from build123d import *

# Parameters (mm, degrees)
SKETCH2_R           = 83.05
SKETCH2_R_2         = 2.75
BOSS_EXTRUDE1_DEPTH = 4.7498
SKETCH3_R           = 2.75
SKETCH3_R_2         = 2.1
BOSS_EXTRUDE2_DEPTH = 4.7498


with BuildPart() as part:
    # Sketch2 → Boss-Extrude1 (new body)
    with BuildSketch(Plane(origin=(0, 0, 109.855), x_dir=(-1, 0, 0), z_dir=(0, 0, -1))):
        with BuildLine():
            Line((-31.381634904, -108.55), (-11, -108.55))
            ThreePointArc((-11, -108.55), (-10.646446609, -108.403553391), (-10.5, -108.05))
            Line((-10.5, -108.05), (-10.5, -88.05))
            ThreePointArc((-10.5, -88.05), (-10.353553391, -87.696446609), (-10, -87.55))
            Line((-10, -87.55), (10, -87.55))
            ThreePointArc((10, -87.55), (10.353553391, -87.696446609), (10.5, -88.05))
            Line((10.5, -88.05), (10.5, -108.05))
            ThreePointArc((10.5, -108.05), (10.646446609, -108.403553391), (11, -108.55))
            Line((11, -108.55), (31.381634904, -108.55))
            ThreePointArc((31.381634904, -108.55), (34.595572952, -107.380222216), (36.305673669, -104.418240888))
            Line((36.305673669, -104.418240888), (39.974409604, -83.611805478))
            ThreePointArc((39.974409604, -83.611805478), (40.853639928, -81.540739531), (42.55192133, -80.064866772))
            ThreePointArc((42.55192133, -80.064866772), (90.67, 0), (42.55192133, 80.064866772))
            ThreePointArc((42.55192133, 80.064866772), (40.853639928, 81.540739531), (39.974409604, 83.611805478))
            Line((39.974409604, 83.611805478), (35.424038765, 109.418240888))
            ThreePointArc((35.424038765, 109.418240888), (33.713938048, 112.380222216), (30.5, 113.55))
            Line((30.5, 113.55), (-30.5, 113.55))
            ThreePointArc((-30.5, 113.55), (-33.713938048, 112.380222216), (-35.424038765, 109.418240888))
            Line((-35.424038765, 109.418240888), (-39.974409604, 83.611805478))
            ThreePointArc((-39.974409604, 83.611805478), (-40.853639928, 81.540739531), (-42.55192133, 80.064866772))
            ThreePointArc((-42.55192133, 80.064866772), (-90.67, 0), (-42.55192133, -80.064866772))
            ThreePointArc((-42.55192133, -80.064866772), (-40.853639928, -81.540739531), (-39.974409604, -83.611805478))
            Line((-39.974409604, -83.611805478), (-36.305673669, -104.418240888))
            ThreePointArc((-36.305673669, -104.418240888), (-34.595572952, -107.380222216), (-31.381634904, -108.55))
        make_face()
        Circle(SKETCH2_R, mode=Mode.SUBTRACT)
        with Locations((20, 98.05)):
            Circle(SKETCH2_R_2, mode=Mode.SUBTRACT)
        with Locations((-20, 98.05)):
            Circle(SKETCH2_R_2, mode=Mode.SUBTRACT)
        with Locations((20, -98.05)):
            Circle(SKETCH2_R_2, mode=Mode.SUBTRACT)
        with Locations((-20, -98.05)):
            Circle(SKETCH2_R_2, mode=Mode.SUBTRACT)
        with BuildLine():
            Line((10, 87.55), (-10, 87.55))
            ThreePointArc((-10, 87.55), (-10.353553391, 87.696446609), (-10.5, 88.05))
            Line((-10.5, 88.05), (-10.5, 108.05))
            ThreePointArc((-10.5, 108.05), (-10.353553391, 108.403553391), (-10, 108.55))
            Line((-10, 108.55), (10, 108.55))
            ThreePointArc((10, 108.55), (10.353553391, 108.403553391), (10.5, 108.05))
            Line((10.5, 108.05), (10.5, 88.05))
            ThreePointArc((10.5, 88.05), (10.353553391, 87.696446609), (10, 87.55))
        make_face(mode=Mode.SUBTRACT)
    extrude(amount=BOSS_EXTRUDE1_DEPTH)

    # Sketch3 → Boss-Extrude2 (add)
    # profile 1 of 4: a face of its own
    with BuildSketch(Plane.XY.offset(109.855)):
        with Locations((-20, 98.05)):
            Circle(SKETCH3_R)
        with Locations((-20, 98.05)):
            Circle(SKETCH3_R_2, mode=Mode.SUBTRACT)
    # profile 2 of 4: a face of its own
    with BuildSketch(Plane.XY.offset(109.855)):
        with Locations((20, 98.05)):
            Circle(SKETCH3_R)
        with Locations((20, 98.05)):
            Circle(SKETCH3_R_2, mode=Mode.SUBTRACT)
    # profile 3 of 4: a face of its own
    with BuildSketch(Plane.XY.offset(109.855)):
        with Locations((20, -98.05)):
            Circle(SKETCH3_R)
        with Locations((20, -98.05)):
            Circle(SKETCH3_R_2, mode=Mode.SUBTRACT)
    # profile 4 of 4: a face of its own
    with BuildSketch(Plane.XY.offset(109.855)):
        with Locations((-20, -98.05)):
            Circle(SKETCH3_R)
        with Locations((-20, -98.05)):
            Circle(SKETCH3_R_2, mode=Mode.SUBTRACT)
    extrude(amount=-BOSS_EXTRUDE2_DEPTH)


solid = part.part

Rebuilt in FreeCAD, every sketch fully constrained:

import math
import FreeCAD as App
import Part
import Sketcher
Q = App.Units.Quantity

doc = App.newDocument("Part")
params = doc.addObject("Spreadsheet::Sheet", "Params")
for row, (alias, value) in enumerate([
    ("sketch1_radius", "5 mm"),
    ("sketch1_diameter", "5.5 mm"),
    ("sketch1_diameter2", "166.1 mm"),
    ("sketch1_radius2", "0.5 mm"),
    ("sketch1_width", "20 mm"),
    ("pad1_length", "4.7498 mm"),
    ("sketch2_diameter", "5.5 mm"),
    ("sketch2_diameter2", "4.2 mm"),
    ("pad2_length", "4.7498 mm"),
], start=1):
    params.set(f"A{row}", alias)
    params.set(f"B{row}", "=" + value)
    params.setAlias(f"B{row}", alias)

body = doc.addObject("PartDesign::Body", "Body")

# Sketch on XY plane
sketch1 = body.newObject("Sketcher::SketchObject", "Sketch")
sketch1.AttachmentSupport = (doc.getObject("XY_Plane"), [""])
sketch1.MapMode = "FlatFace"
sketch1.AttachmentOffset = App.Placement(App.Vector(0, 0, 109.855), App.Rotation())
sketch1.addGeometry([
    Part.LineSegment(App.Vector(31.38, -108.55, 0), App.Vector(11, -108.55, 0)),  # 0
    Part.ArcOfCircle(Part.Circle(App.Vector(11, -108.05, 0), App.Vector(0, 0, 1), 0.5), math.radians(180), math.radians(270)),  # 1
    Part.LineSegment(App.Vector(10.5, -108.05, 0), App.Vector(10.5, -88.05, 0)),  # 2
    Part.ArcOfCircle(Part.Circle(App.Vector(10, -88.05, 0), App.Vector(0, 0, 1), 0.5), math.radians(0), math.radians(90)),  # 3
    Part.LineSegment(App.Vector(10, -87.55, 0), App.Vector(-10, -87.55, 0)),  # 4
    Part.ArcOfCircle(Part.Circle(App.Vector(-10, -88.05, 0), App.Vector(0, 0, 1), 0.5), math.radians(90), math.radians(180)),  # 5
    Part.LineSegment(App.Vector(-10.5, -88.05, 0), App.Vector(-10.5, -108.05, 0)),  # 6
    Part.ArcOfCircle(Part.Circle(App.Vector(-11, -108.05, 0), App.Vector(0, 0, 1), 0.5), math.radians(-90), math.radians(0)),  # 7
    Part.LineSegment(App.Vector(-11, -108.55, 0), App.Vector(-31.38, -108.55, 0)),  # 8
    Part.ArcOfCircle(Part.Circle(App.Vector(-31.38, -103.55, 0), App.Vector(0, 0, 1), 5), math.radians(-170), math.radians(-90)),  # 9
    Part.LineSegment(App.Vector(-36.31, -104.42, 0), App.Vector(-39.97, -83.61, 0)),  # 10
    Part.ArcOfCircle(Part.Circle(App.Vector(-44.9, -84.48, 0), App.Vector(0, 0, 1), 5), math.radians(10), math.radians(62)),  # 11
    Part.ArcOfCircle(Part.Circle(App.Vector(0, 0, 0), App.Vector(0, 0, 1), 90.67), math.radians(118), math.radians(242)),  # 12
    Part.ArcOfCircle(Part.Circle(App.Vector(-44.9, 84.48, 0), App.Vector(0, 0, 1), 5), math.radians(-62), math.radians(-10)),  # 13
    Part.LineSegment(App.Vector(-39.97, 83.61, 0), App.Vector(-35.42, 109.42, 0)),  # 14
    Part.ArcOfCircle(Part.Circle(App.Vector(-30.5, 108.55, 0), App.Vector(0, 0, 1), 5), math.radians(90), math.radians(170)),  # 15
    Part.LineSegment(App.Vector(-30.5, 113.55, 0), App.Vector(30.5, 113.55, 0)),  # 16
    Part.ArcOfCircle(Part.Circle(App.Vector(30.5, 108.55, 0), App.Vector(0, 0, 1), 5), math.radians(10), math.radians(90)),  # 17
    Part.LineSegment(App.Vector(35.42, 109.42, 0), App.Vector(39.97, 83.61, 0)),  # 18
    Part.ArcOfCircle(Part.Circle(App.Vector(44.9, 84.48, 0), App.Vector(0, 0, 1), 5), math.radians(-170), math.radians(-118)),  # 19
    Part.ArcOfCircle(Part.Circle(App.Vector(0, 0, 0), App.Vector(0, 0, 1), 90.67), math.radians(-62), math.radians(62)),  # 20
    Part.ArcOfCircle(Part.Circle(App.Vector(44.9, -84.48, 0), App.Vector(0, 0, 1), 5), math.radians(118), math.radians(170)),  # 21
    Part.LineSegment(App.Vector(39.97, -83.61, 0), App.Vector(36.31, -104.42, 0)),  # 22
    Part.ArcOfCircle(Part.Circle(App.Vector(31.38, -103.55, 0), App.Vector(0, 0, 1), 5), math.radians(-90), math.radians(-10)),  # 23
    Part.Circle(App.Vector(20, -98.05, 0), App.Vector(0, 0, 1), 2.75),  # 24
    Part.Circle(App.Vector(-20, -98.05, 0), App.Vector(0, 0, 1), 2.75),  # 25
    Part.Circle(App.Vector(0, 0, 0), App.Vector(0, 0, 1), 83.05),  # 26
    Part.Circle(App.Vector(20, 98.05, 0), App.Vector(0, 0, 1), 2.75),  # 27
    Part.ArcOfCircle(Part.Circle(App.Vector(-10, 88.05, 0), App.Vector(0, 0, 1), 0.5), math.radians(180), math.radians(270)),  # 28
    Part.LineSegment(App.Vector(-10, 87.55, 0), App.Vector(10, 87.55, 0)),  # 29
    Part.ArcOfCircle(Part.Circle(App.Vector(10, 88.05, 0), App.Vector(0, 0, 1), 0.5), math.radians(-90), math.radians(0)),  # 30
    Part.LineSegment(App.Vector(10.5, 88.05, 0), App.Vector(10.5, 108.05, 0)),  # 31
    Part.ArcOfCircle(Part.Circle(App.Vector(10, 108.05, 0), App.Vector(0, 0, 1), 0.5), math.radians(0), math.radians(90)),  # 32
    Part.LineSegment(App.Vector(10, 108.55, 0), App.Vector(-10, 108.55, 0)),  # 33
    Part.ArcOfCircle(Part.Circle(App.Vector(-10, 108.05, 0), App.Vector(0, 0, 1), 0.5), math.radians(90), math.radians(180)),  # 34
    Part.LineSegment(App.Vector(-10.5, 108.05, 0), App.Vector(-10.5, 88.05, 0)),  # 35
    Part.Circle(App.Vector(-20, 98.05, 0), App.Vector(0, 0, 1), 2.75),  # 36
], False)
sketch1.addConstraint([
    Sketcher.Constraint("Tangent", 0, 2, 1, 2),
    Sketcher.Constraint("Tangent", 1, 1, 2, 1),
    Sketcher.Constraint("Tangent", 2, 2, 3, 1),
    Sketcher.Constraint("Tangent", 3, 2, 4, 1),
    Sketcher.Constraint("Tangent", 4, 2, 5, 1),
    Sketcher.Constraint("Tangent", 5, 2, 6, 1),
    Sketcher.Constraint("Tangent", 6, 2, 7, 2),
    Sketcher.Constraint("Tangent", 7, 1, 8, 1),
    Sketcher.Constraint("Tangent", 8, 2, 9, 2),
    Sketcher.Constraint("Tangent", 9, 1, 10, 1),
    Sketcher.Constraint("Tangent", 10, 2, 11, 1),
    Sketcher.Constraint("Tangent", 11, 2, 12, 2),
    Sketcher.Constraint("Tangent", 12, 1, 13, 1),
    Sketcher.Constraint("Tangent", 13, 2, 14, 1),
    Sketcher.Constraint("Tangent", 14, 2, 15, 2),
    Sketcher.Constraint("Tangent", 15, 1, 16, 1),
    Sketcher.Constraint("Tangent", 16, 2, 17, 2),
    Sketcher.Constraint("Tangent", 17, 1, 18, 1),
    Sketcher.Constraint("Tangent", 18, 2, 19, 1),
    Sketcher.Constraint("Tangent", 19, 2, 20, 2),
    Sketcher.Constraint("Tangent", 20, 1, 21, 1),
    Sketcher.Constraint("Tangent", 21, 2, 22, 1),
    Sketcher.Constraint("Tangent", 22, 2, 23, 2),
    Sketcher.Constraint("Tangent", 23, 1, 0, 1),
    Sketcher.Constraint("Tangent", 28, 2, 29, 1),
    Sketcher.Constraint("Tangent", 29, 2, 30, 1),
    Sketcher.Constraint("Tangent", 30, 2, 31, 1),
    Sketcher.Constraint("Tangent", 31, 2, 32, 1),
    Sketcher.Constraint("Tangent", 32, 2, 33, 1),
    Sketcher.Constraint("Tangent", 33, 2, 34, 1),
    Sketcher.Constraint("Tangent", 34, 2, 35, 1),
    Sketcher.Constraint("Tangent", 35, 2, 28, 1),
    Sketcher.Constraint("Horizontal", 0),
    Sketcher.Constraint("Vertical", 2),
    Sketcher.Constraint("Horizontal", 4),
    Sketcher.Constraint("Vertical", 6),
    Sketcher.Constraint("Horizontal", 8),
    Sketcher.Constraint("Horizontal", 16),
    Sketcher.Constraint("Horizontal", 29),
    Sketcher.Constraint("Vertical", 31),
    Sketcher.Constraint("Horizontal", 33),
    Sketcher.Constraint("Vertical", 35),
    Sketcher.Constraint("Coincident", 12, 3, -1, 1),
    Sketcher.Constraint("Coincident", 20, 3, -1, 1),
    Sketcher.Constraint("Coincident", 26, 3, -1, 1),
    Sketcher.Constraint("Equal", 1, 3),
    Sketcher.Constraint("Equal", 3, 5),
    Sketcher.Constraint("Equal", 5, 7),
    Sketcher.Constraint("Equal", 9, 11),
    Sketcher.Constraint("Equal", 11, 13),
    Sketcher.Constraint("Equal", 13, 15),
    Sketcher.Constraint("Equal", 15, 17),
    Sketcher.Constraint("Equal", 17, 19),
    Sketcher.Constraint("Equal", 12, 20),
    Sketcher.Constraint("Equal", 19, 21),
    Sketcher.Constraint("Equal", 21, 23),
    Sketcher.Constraint("Equal", 24, 25),
    Sketcher.Constraint("Equal", 25, 27),
    Sketcher.Constraint("Equal", 7, 28),
    Sketcher.Constraint("Equal", 28, 30),
    Sketcher.Constraint("Equal", 30, 32),
    Sketcher.Constraint("Equal", 32, 34),
    Sketcher.Constraint("Equal", 27, 36),
    Sketcher.Constraint("Symmetric", 25, 3, 27, 3, -1, 1),
    Sketcher.Constraint("Symmetric", 3, 3, 28, 3, -1, 1),
    Sketcher.Constraint("Symmetric", 24, 3, 36, 3, -1, 1),
    Sketcher.Constraint("Symmetric", 10, 2, 18, 2, -1, 1),
    Sketcher.Constraint("Symmetric", 13, 2, 21, 2, -1, 1),
    Sketcher.Constraint("Symmetric", 6, 2, 31, 2, -1, 1),
    Sketcher.Constraint("Symmetric", 1, 3, 7, 3, -2),
    Sketcher.Constraint("Symmetric", 24, 3, 25, 3, -2),
    Sketcher.Constraint("Symmetric", 14, 2, 17, 1, -2),
    Sketcher.Constraint("Horizontal", 17, 3, 32, 2),
    Sketcher.Constraint("Equal", 33, 2),
    Sketcher.Constraint("Radius", 9, Q("5 mm")),
    Sketcher.Constraint("Diameter", 24, Q("5.5 mm")),
    Sketcher.Constraint("Diameter", 26, Q("166.1 mm")),
    Sketcher.Constraint("Radius", 1, Q("0.5 mm")),
    Sketcher.Constraint("DistanceX", 4, 2, 4, 1, Q("20 mm")),
    Sketcher.Constraint("DistanceX", 16, 1, 16, 2, Q("61 mm")),
    Sketcher.Constraint("Angle", 10, Q("100 deg")),
    Sketcher.Constraint("Radius", 12, Q("90.67 mm")),
    Sketcher.Constraint("DistanceX", -1, 1, 24, 3, Q("20 mm")),
    Sketcher.Constraint("DistanceY", 1, 3, 24, 3, Q("10 mm")),
    Sketcher.Constraint("DistanceY", 5, 3, 15, 3, Q("196.6 mm")),
])
sketch1.setExpression("Constraints[74]", "Params.sketch1_radius")
sketch1.setExpression("Constraints[75]", "Params.sketch1_diameter")
sketch1.setExpression("Constraints[76]", "Params.sketch1_diameter2")
sketch1.setExpression("Constraints[77]", "Params.sketch1_radius2")
sketch1.setExpression("Constraints[78]", "Params.sketch1_width")
pad1 = body.newObject("PartDesign::Pad", "Pad")
pad1.Profile = sketch1
pad1.setExpression("Length", "Params.pad1_length")
pad1.Reversed = True

# Sketch on XY plane
sketch2 = body.newObject("Sketcher::SketchObject", "Sketch001")
sketch2.AttachmentSupport = (doc.getObject("XY_Plane"), [""])
sketch2.MapMode = "FlatFace"
sketch2.AttachmentOffset = App.Placement(App.Vector(0, 0, 109.855), App.Rotation())
sketch2.addGeometry([
    Part.Circle(App.Vector(-20, 98, 0), App.Vector(0, 0, 1), 2.8),  # 0
    Part.Circle(App.Vector(-20, 98, 0), App.Vector(0, 0, 1), 2.1),  # 1
    Part.Circle(App.Vector(20, 98, 0), App.Vector(0, 0, 1), 2.8),  # 2
    Part.Circle(App.Vector(20, 98, 0), App.Vector(0, 0, 1), 2.1),  # 3
    Part.Circle(App.Vector(20, -98, 0), App.Vector(0, 0, 1), 2.8),  # 4
    Part.Circle(App.Vector(20, -98, 0), App.Vector(0, 0, 1), 2.1),  # 5
    Part.Circle(App.Vector(-20, -98, 0), App.Vector(0, 0, 1), 2.8),  # 6
    Part.Circle(App.Vector(-20, -98, 0), App.Vector(0, 0, 1), 2.1),  # 7
], False)
sketch2.addConstraint([
    Sketcher.Constraint("Coincident", 1, 3, 0, 3),
    Sketcher.Constraint("Coincident", 3, 3, 2, 3),
    Sketcher.Constraint("Coincident", 5, 3, 4, 3),
    Sketcher.Constraint("Coincident", 7, 3, 6, 3),
    Sketcher.Constraint("Equal", 0, 2),
    Sketcher.Constraint("Equal", 1, 3),
    Sketcher.Constraint("Equal", 2, 4),
    Sketcher.Constraint("Equal", 3, 5),
    Sketcher.Constraint("Equal", 4, 6),
    Sketcher.Constraint("Equal", 5, 7),
    Sketcher.Constraint("Symmetric", 0, 3, 4, 3, -1, 1),
    Sketcher.Constraint("Symmetric", 2, 3, 6, 3, -1, 1),
    Sketcher.Constraint("Symmetric", 0, 3, 2, 3, -2),
    Sketcher.Constraint("Diameter", 0, Q("5.5 mm")),
    Sketcher.Constraint("Diameter", 1, Q("4.2 mm")),
    Sketcher.Constraint("DistanceX", 0, 3, -1, 1, Q("20 mm")),
    Sketcher.Constraint("DistanceY", 4, 3, 2, 3, Q("196.1 mm")),
])
sketch2.setExpression("Constraints[13]", "Params.sketch2_diameter")
sketch2.setExpression("Constraints[14]", "Params.sketch2_diameter2")
pad2 = body.newObject("PartDesign::Pad", "Pad001")
pad2.Profile = sketch2
pad2.setExpression("Length", "Params.pad2_length")
pad2.Reversed = True

doc.recompute()
